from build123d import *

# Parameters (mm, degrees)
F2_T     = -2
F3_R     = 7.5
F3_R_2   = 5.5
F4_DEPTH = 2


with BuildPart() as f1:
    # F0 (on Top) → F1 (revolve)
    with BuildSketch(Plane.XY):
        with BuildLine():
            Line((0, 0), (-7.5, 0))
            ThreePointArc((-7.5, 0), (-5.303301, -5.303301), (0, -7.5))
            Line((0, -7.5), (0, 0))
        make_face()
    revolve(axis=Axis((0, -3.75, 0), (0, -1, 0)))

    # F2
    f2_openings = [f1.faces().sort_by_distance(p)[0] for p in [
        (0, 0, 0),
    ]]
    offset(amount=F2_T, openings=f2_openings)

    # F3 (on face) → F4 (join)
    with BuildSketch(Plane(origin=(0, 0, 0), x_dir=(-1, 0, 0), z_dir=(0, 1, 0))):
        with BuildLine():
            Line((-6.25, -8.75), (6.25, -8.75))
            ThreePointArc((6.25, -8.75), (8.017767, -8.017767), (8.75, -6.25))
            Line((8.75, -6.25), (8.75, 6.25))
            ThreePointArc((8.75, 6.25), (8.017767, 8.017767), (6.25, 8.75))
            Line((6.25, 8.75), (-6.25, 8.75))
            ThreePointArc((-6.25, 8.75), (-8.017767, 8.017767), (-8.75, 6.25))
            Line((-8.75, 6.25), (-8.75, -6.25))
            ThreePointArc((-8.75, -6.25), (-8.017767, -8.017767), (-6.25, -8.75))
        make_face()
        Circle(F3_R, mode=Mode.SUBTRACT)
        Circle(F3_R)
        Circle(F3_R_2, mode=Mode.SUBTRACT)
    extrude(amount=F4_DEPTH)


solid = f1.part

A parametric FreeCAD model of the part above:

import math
import FreeCAD as App
import Part
import Sketcher

V = App.Vector


def faces_at(feature, points):
    """Names of the faces that lie closest to the given points."""
    faces = feature.Shape.Faces
    near = lambda p: min(range(len(faces)), key=lambda i: faces[i].distToShape(Part.Vertex(*p))[0])
    return sorted({f"Face{near(p) + 1}" for p in points})

doc = App.newDocument("Part")
body = doc.addObject("PartDesign::Body", "Body")

# Sketch on XY plane
sketch1 = body.newObject("Sketcher::SketchObject", "Sketch")
sketch1.AttachmentSupport = (doc.getObject("XY_Plane"), [""])
sketch1.MapMode = "FlatFace"
sketch1.addGeometry(Part.LineSegment(V(0, 0, 0), V(-7.5, 0, 0)), False)
sketch1.addGeometry(Part.ArcOfCircle(Part.Circle(V(0, 0, 0), V(0, 0, 1), 7.5), math.radians(179.999996), math.radians(270.000004)), False)
sketch1.addGeometry(Part.LineSegment(V(0, -7.5, 0), V(0, 0, 0)), False)
sketch1.addConstraint(Sketcher.Constraint("Coincident", 0, 2, 1, 1))
sketch1.addConstraint(Sketcher.Constraint("Coincident", 1, 2, 2, 1))
sketch1.addConstraint(Sketcher.Constraint("Coincident", 2, 2, 0, 1))
sketch1.addConstraint(Sketcher.Constraint("Horizontal", 0))
sketch1.addConstraint(Sketcher.Constraint("Vertical", 2))
sketch1.addConstraint(Sketcher.Constraint("Coincident", 1, 3, -1, 1))
sketch1.addConstraint(Sketcher.Constraint("Coincident", 2, 2, -1, 1))
sketch1.addConstraint(Sketcher.Constraint("Radius", 1, 7.5))
revolution = body.newObject("PartDesign::Revolution", "Revolution")
revolution.Profile = sketch1
revolution.ReferenceAxis = (sketch1, ["V_Axis"])
revolution.Angle = 360
doc.recompute()

thickness = body.newObject("PartDesign::Thickness", "Thickness")
thickness.Base = (revolution, faces_at(revolution, [(0, 0, 0)]))
thickness.Value = 2
thickness.Reversed = True
thickness.Join = "Arc"

# Sketch on XZ plane
sketch2 = body.newObject("Sketcher::SketchObject", "Sketch001")
sketch2.AttachmentSupport = (doc.getObject("XZ_Plane"), [""])
sketch2.MapMode = "FlatFace"
sketch2.addGeometry(Part.LineSegment(V(6.25, -8.75, 0), V(-6.25, -8.75, 0)), False)
sketch2.addGeometry(Part.ArcOfCircle(Part.Circle(V(-6.25, -6.25, 0), V(0, 0, 1), 2.5), math.radians(179.999996), math.radians(270.000004)), False)
sketch2.addGeometry(Part.LineSegment(V(-8.75, -6.25, 0), V(-8.75, 6.25, 0)), False)
sketch2.addGeometry(Part.ArcOfCircle(Part.Circle(V(-6.25, 6.25, 0), V(0, 0, 1), 2.5), math.radians(89.999996), math.radians(180.000004)), False)
sketch2.addGeometry(Part.LineSegment(V(-6.25, 8.75, 0), V(6.25, 8.75, 0)), False)
sketch2.addGeometry(Part.ArcOfCircle(Part.Circle(V(6.25, 6.25, 0), V(0, 0, 1), 2.5), math.radians(-0.000004), math.radians(90.000004)), False)
sketch2.addGeometry(Part.LineSegment(V(8.75, 6.25, 0), V(8.75, -6.25, 0)), False)
sketch2.addGeometry(Part.ArcOfCircle(Part.Circle(V(6.25, -6.25, 0), V(0, 0, 1), 2.5), math.radians(-90.000004), math.radians(0.000004)), False)
sketch2.addGeometry(Part.Circle(V(0, 0, 0), V(0, 0, 1), 5.5), False)
sketch2.addConstraint(Sketcher.Constraint("Tangent", 0, 2, 1, 2))
sketch2.addConstraint(Sketcher.Constraint("Tangent", 1, 1, 2, 1))
sketch2.addConstraint(Sketcher.Constraint("Tangent", 2, 2, 3, 2))
sketch2.addConstraint(Sketcher.Constraint("Tangent", 3, 1, 4, 1))
sketch2.addConstraint(Sketcher.Constraint("Tangent", 4, 2, 5, 2))
sketch2.addConstraint(Sketcher.Constraint("Tangent", 5, 1, 6, 1))
sketch2.addConstraint(Sketcher.Constraint("Tangent", 6, 2, 7, 2))
sketch2.addConstraint(Sketcher.Constraint("Tangent", 7, 1, 0, 1))
sketch2.addConstraint(Sketcher.Constraint("Horizontal", 0))
sketch2.addConstraint(Sketcher.Constraint("Vertical", 2))
sketch2.addConstraint(Sketcher.Constraint("Horizontal", 4))
sketch2.addConstraint(Sketcher.Constraint("Vertical", 6))
sketch2.addConstraint(Sketcher.Constraint("Coincident", 8, 3, -1, 1))
sketch2.addConstraint(Sketcher.Constraint("Equal", 1, 3))
sketch2.addConstraint(Sketcher.Constraint("Equal", 3, 5))
sketch2.addConstraint(Sketcher.Constraint("Equal", 5, 7))
sketch2.addConstraint(Sketcher.Constraint("Symmetric", 1, 3, 5, 3, -1, 1))
sketch2.addConstraint(Sketcher.Constraint("Equal", 4, 2))
sketch2.addConstraint(Sketcher.Constraint("Diameter", 8, 11.0))
sketch2.addConstraint(Sketcher.Constraint("Radius", 1, 2.5))
sketch2.addConstraint(Sketcher.Constraint("DistanceX", 0, 2, 0, 1, 12.5))
pad1 = body.newObject("PartDesign::Pad", "Pad")
pad1.Profile = sketch2
pad1.Length = 2
pad1.Reversed = True

doc.recompute()
